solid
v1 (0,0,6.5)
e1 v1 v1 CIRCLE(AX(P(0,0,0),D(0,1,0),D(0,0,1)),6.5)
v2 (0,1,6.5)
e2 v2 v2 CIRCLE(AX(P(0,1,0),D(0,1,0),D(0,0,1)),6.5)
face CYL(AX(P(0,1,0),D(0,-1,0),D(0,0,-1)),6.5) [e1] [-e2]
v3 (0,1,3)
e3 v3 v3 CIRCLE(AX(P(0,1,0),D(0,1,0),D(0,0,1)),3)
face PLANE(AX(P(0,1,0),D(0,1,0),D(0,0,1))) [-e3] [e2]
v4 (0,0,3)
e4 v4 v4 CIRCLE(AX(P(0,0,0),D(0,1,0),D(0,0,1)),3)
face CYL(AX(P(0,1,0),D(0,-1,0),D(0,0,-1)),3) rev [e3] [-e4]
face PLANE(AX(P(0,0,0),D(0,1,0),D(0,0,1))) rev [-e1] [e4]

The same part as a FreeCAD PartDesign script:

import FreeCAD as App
import Part
import Sketcher

V = App.Vector

doc = App.newDocument("Part")
params = doc.addObject("Spreadsheet::Sheet", "Params")
for row, (alias, value) in enumerate([
    ("sketch1_diameter", "13 mm"),
    ("sketch1_diameter2", "6 mm"),
    ("pad1_length", "1 mm"),
], start=1):
    params.set(f"A{row}", alias)
    params.set(f"B{row}", "=" + value)
    params.setAlias(f"B{row}", alias)

body = doc.addObject("PartDesign::Body", "Body")

# Sketch on XZ plane
sketch1 = doc.addObject("Sketcher::SketchObject", "Sketch")
body.addObject(sketch1)
sketch1.AttachmentSupport = (doc.XZ_Plane, [""])
sketch1.MapMode = "FlatFace"
sketch1.addGeometry([
    Part.Circle(V(0, 0, 0), V(0, 0, 1), 6.5),
    Part.Circle(V(0, 0, 0), V(0, 0, 1), 3),
], False)
sketch1.addConstraint([
    Sketcher.Constraint("Coincident", 0, 3, -1, 1),
    Sketcher.Constraint("Coincident", 1, 3, -1, 1),
    Sketcher.Constraint("Diameter", 0, 13.0),
    Sketcher.Constraint("Diameter", 1, 6.0),
])
sketch1.setExpression("Constraints[2]", "Params.sketch1_diameter")
sketch1.setExpression("Constraints[3]", "Params.sketch1_diameter2")
pad1 = doc.addObject("PartDesign::Pad", "Pad")
body.addObject(pad1)
pad1.Profile = sketch1
pad1.setExpression("Length", "Params.pad1_length")
pad1.Reversed = True

doc.recompute()
